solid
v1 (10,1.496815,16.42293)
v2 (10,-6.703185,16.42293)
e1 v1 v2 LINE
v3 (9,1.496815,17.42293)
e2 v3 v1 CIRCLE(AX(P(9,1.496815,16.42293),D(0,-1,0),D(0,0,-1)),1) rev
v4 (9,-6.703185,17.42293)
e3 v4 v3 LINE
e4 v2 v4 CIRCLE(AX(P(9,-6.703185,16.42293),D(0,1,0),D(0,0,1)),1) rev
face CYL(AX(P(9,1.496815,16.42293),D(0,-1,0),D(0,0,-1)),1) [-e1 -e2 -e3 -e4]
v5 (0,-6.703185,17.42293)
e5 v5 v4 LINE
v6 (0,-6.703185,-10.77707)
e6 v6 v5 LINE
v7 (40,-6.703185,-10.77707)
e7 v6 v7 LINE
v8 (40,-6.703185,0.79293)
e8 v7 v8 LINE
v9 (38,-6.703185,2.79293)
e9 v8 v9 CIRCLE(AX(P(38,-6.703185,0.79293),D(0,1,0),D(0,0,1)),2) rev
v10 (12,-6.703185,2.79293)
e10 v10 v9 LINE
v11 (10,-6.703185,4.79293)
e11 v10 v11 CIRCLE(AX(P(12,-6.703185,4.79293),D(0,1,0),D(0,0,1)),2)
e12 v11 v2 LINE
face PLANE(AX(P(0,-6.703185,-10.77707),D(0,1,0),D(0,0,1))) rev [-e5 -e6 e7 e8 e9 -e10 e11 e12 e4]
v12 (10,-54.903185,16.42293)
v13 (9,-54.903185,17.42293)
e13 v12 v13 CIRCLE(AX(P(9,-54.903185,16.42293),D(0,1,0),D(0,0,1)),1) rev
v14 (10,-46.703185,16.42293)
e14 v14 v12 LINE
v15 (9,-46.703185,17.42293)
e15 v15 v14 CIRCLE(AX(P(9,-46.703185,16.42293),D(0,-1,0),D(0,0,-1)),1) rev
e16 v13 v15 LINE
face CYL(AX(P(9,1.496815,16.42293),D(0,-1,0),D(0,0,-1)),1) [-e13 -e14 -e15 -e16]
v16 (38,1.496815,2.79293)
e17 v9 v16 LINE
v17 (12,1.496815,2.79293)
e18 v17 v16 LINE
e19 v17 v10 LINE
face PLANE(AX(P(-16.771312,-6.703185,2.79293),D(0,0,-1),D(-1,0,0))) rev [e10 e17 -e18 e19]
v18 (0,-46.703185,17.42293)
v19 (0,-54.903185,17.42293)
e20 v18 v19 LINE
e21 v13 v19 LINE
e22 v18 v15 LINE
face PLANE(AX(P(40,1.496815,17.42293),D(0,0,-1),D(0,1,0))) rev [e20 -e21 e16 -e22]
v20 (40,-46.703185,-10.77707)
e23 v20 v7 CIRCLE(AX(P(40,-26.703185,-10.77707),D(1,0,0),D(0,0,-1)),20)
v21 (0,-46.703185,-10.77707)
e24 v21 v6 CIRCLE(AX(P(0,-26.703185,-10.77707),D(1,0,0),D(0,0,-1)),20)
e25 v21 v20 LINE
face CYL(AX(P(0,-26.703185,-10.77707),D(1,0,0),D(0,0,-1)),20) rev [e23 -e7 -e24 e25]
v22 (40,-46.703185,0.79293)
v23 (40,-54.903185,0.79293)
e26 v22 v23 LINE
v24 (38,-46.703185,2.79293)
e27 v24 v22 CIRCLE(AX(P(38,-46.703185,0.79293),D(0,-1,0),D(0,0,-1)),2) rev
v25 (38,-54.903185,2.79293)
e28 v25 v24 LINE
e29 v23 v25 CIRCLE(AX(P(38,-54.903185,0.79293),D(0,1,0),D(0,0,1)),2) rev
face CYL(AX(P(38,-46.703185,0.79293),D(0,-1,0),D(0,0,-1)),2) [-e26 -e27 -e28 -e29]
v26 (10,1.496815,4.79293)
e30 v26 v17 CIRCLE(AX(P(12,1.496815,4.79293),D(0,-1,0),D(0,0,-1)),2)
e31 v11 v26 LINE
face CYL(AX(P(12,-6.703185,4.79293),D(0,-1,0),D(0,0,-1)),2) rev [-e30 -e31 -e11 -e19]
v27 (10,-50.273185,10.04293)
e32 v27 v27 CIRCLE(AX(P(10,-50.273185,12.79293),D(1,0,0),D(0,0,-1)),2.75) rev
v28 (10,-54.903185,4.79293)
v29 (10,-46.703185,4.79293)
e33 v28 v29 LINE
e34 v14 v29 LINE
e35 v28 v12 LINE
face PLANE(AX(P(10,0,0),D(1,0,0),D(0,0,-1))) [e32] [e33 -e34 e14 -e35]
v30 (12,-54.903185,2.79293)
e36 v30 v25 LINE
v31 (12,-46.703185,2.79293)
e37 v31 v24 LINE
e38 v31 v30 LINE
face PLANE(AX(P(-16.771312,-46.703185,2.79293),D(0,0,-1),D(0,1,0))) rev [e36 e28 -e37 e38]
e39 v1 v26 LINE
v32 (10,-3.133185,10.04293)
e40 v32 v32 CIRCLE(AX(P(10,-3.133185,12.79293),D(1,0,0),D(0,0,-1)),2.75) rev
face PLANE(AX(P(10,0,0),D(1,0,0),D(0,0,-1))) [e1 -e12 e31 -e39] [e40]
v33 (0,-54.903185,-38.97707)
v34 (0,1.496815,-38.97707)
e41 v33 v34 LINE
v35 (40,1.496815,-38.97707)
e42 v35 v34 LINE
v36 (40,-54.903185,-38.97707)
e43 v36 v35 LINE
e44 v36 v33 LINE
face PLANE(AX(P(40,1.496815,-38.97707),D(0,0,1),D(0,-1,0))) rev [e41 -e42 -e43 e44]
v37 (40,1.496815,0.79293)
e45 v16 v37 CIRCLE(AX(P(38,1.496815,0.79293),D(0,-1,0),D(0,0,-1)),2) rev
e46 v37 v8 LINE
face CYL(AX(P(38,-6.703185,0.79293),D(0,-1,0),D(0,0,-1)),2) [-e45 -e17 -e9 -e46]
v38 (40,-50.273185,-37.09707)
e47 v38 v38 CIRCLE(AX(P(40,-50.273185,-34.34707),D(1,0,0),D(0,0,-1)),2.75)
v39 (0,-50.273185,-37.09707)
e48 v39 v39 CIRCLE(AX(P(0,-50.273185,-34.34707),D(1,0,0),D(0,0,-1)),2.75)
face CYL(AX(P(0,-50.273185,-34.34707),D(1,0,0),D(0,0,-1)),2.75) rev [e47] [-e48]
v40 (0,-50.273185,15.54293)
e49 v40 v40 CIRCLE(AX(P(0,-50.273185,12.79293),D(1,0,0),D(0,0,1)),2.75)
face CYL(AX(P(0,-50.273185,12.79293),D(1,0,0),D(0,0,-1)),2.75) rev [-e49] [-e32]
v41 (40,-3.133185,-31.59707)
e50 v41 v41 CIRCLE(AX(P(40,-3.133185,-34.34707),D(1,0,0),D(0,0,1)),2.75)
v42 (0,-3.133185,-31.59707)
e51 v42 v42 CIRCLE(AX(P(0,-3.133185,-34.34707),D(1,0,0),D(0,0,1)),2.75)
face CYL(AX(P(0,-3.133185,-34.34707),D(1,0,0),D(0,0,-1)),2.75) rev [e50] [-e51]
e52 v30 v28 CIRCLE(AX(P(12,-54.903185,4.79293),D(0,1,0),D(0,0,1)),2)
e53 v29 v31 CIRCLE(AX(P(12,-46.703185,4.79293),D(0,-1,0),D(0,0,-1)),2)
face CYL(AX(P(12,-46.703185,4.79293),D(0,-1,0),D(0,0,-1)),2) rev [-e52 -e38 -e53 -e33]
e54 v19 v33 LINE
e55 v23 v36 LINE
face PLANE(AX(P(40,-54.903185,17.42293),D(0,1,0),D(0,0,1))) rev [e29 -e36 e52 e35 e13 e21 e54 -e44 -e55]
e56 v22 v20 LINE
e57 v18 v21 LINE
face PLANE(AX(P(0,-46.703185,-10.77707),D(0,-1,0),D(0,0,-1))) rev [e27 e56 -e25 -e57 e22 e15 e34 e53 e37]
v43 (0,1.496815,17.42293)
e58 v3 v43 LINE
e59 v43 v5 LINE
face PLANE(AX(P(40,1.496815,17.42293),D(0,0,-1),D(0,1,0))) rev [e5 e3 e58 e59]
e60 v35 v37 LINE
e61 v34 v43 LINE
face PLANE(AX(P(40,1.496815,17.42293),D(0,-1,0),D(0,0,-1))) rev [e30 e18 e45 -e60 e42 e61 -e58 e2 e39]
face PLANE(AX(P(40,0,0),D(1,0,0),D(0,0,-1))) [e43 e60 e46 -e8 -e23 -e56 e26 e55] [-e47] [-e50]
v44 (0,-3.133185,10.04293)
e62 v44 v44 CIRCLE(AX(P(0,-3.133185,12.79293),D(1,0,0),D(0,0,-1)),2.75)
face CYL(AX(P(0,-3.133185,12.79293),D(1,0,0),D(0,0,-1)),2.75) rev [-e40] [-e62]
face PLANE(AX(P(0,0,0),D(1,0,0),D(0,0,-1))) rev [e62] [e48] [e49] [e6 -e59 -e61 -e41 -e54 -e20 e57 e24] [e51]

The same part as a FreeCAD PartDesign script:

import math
import FreeCAD as App
import Part
import Sketcher
Q = App.Units.Quantity


def edges_at(feature, points):
    """Names of the edges that pass closest to the given points."""
    edges = feature.Shape.Edges
    near = lambda p: min(range(len(edges)), key=lambda i: edges[i].distToShape(Part.Vertex(*p))[0])
    return sorted({f"Edge{near(p) + 1}" for p in points})


def add_polygon(sketch, points):
    """Adds a closed chain of lines whose ends are joined by coincident constraints."""
    first, n = sketch.GeometryCount, len(points)
    for a, b in zip(points, points[1:] + points[:1]):
        sketch.addGeometry(Part.LineSegment(App.Vector(*a, 0), App.Vector(*b, 0)), False)
    for i in range(n):
        sketch.addConstraint(Sketcher.Constraint("Coincident", first + i, 2, first + (i + 1) % n, 1))

doc = App.newDocument("Part")
body = doc.addObject("PartDesign::Body", "Body")

sketch1 = doc.addObject("Sketcher::SketchObject", "Sketch")
body.addObject(sketch1)
sketch1.AttachmentSupport = (doc.YZ_Plane, [""])
sketch1.MapMode = "FlatFace"
add_polygon(sketch1, [(1.496815, 17.42293), (-54.903185, 17.42293), (-54.903185, -38.97707), (1.496815, -38.97707)])
sketch1.addConstraint([
    Sketcher.Constraint("Horizontal", 0),
    Sketcher.Constraint("Vertical", 1),
    Sketcher.Constraint("Horizontal", 2),
    Sketcher.Constraint("Vertical", 3),
    Sketcher.Constraint("Equal", 2, 1),
    Sketcher.Constraint("DistanceX", 0, 2, 0, 1, Q("56.4 mm")),
    Sketcher.Constraint("DistanceY", -1, 1, 0, 2, Q("17.42293 mm")),
    Sketcher.Constraint("DistanceX", 0, 2, -1, 1, Q("54.903185 mm")),
])
pad1 = doc.addObject("PartDesign::Pad", "Pad")
body.addObject(pad1)
pad1.Profile = sketch1
pad1.Length = 40

sketch2 = doc.addObject("Sketcher::SketchObject", "Sketch001")
body.addObject(sketch2)
sketch2.AttachmentSupport = (doc.YZ_Plane, [""])
sketch2.MapMode = "FlatFace"
sketch2.AttachmentOffset = App.Placement(App.Vector(0, 0, 40), App.Rotation())
sketch2.addGeometry([
    Part.Circle(App.Vector(-3.133185, 12.79293, 0), App.Vector(0, 0, 1), 2.75),
    Part.Circle(App.Vector(-50.273185, 12.79293, 0), App.Vector(0, 0, 1), 2.75),
    Part.Circle(App.Vector(-3.133185, -34.34707, 0), App.Vector(0, 0, 1), 2.75),
    Part.Circle(App.Vector(-50.273185, -34.34707, 0), App.Vector(0, 0, 1), 2.75),
], False)
sketch2.addConstraint([
    Sketcher.Constraint("Equal", 0, 1),
    Sketcher.Constraint("Equal", 1, 2),
    Sketcher.Constraint("Equal", 2, 3),
    Sketcher.Constraint("Horizontal", 0, 3, 1, 3),
    Sketcher.Constraint("Horizontal", 2, 3, 3, 3),
    Sketcher.Constraint("Vertical", 0, 3, 2, 3),
    Sketcher.Constraint("Vertical", 1, 3, 3, 3),
    Sketcher.Constraint("Diameter", 0, Q("5.5 mm")),
    Sketcher.Constraint("DistanceX", 1, 3, 0, 3, Q("47.14 mm")),
    Sketcher.Constraint("DistanceY", 2, 3, 0, 3, Q("47.14 mm")),
    Sketcher.Constraint("DistanceY", -1, 1, 0, 3, Q("12.79293 mm")),
    Sketcher.Constraint("DistanceX", 0, 3, -1, 1, Q("3.133185 mm")),
])
pocket1 = doc.addObject("PartDesign::Pocket", "Pocket")
body.addObject(pocket1)
pocket1.Profile = sketch2
pocket1.Type = "ThroughAll"

sketch3 = doc.addObject("Sketcher::SketchObject", "Sketch002")
body.addObject(sketch3)
sketch3.AttachmentSupport = (doc.YZ_Plane, [""])
sketch3.MapMode = "FlatFace"
sketch3.AttachmentOffset = App.Placement(App.Vector(0, 0, 40), App.Rotation())
sketch3.addGeometry([
    Part.LineSegment(App.Vector(-6.703185, -10.77707, 0), App.Vector(-6.703185, 17.42293, 0)),
    Part.LineSegment(App.Vector(-6.703185, 17.42293, 0), App.Vector(-46.703185, 17.42293, 0)),
    Part.LineSegment(App.Vector(-46.703185, 17.42293, 0), App.Vector(-46.703185, -10.77707, 0)),
    Part.ArcOfCircle(Part.Circle(App.Vector(-26.703185, -10.77707, 0), App.Vector(0, 0, 1), 20), math.radians(180), math.radians(360)),
], False)
sketch3.addConstraint([
    Sketcher.Constraint("Coincident", 0, 2, 1, 1),
    Sketcher.Constraint("Coincident", 1, 2, 2, 1),
    Sketcher.Constraint("Tangent", 2, 2, 3, 1),
    Sketcher.Constraint("Tangent", 3, 2, 0, 1),
    Sketcher.Constraint("Vertical", 0),
    Sketcher.Constraint("Horizontal", 1),
    Sketcher.Constraint("Vertical", 2),
    Sketcher.Constraint("Radius", 3, Q("20 mm")),
    Sketcher.Constraint("DistanceY", 0, 1, 0, 2, Q("28.2 mm")),
    Sketcher.Constraint("DistanceY", 3, 3, -1, 1, Q("10.77707 mm")),
    Sketcher.Constraint("DistanceX", 3, 3, -1, 1, Q("26.703185 mm")),
])
pocket2 = doc.addObject("PartDesign::Pocket", "Pocket001")
body.addObject(pocket2)
pocket2.Profile = sketch3
pocket2.Type = "ThroughAll"

sketch4 = doc.addObject("Sketcher::SketchObject", "Sketch003")
body.addObject(sketch4)
sketch4.AttachmentSupport = (doc.YZ_Plane, [""])
sketch4.MapMode = "FlatFace"
sketch4.AttachmentOffset = App.Placement(App.Vector(0, 0, 40), App.Rotation())
add_polygon(sketch4, [(1.496815, 17.42293), (-6.703185, 17.42293), (-6.703185, 2.79293), (1.496815, 2.79293)])
add_polygon(sketch4, [(-46.703185, 17.42293), (-54.903185, 17.42293), (-54.903185, 2.79293), (-46.703185, 2.79293)])
sketch4.addConstraint([
    Sketcher.Constraint("Horizontal", 0),
    Sketcher.Constraint("Vertical", 1),
    Sketcher.Constraint("Horizontal", 2),
    Sketcher.Constraint("Vertical", 3),
    Sketcher.Constraint("Horizontal", 4),
    Sketcher.Constraint("Vertical", 5),
    Sketcher.Constraint("Horizontal", 6),
    Sketcher.Constraint("Vertical", 7),
    Sketcher.Constraint("Horizontal", 3, 2, 4, 2),
    Sketcher.Constraint("Horizontal", 2, 2, 5, 2),
    Sketcher.Constraint("Equal", 2, 4),
    Sketcher.Constraint("DistanceX", 0, 2, 0, 1, Q("8.2 mm")),
    Sketcher.Constraint("DistanceX", 6, 2, 1, 2, Q("40 mm")),
    Sketcher.Constraint("DistanceY", 1, 2, 1, 1, Q("14.63 mm")),
    Sketcher.Constraint("DistanceY", -1, 1, 0, 2, Q("17.42293 mm")),
    Sketcher.Constraint("DistanceX", 0, 2, -1, 1, Q("6.703185 mm")),
])
pocket3 = doc.addObject("PartDesign::Pocket", "Pocket002")
body.addObject(pocket3)
pocket3.Profile = sketch4
pocket3.Length = 30
doc.recompute()

fillet = doc.addObject("PartDesign::Fillet", "Fillet")
body.addObject(fillet)
fillet.Base = (pocket3, edges_at(pocket3, [(10, -2.603, 2.793), (10, -50.803, 2.793)]))
fillet.Radius = 2
doc.recompute()

fillet2 = doc.addObject("PartDesign::Fillet", "Fillet001")
body.addObject(fillet2)
fillet2.Base = (fillet, edges_at(fillet, [(40, -2.603, 2.793), (40, -50.803, 2.793)]))
fillet2.Radius = 2
doc.recompute()

fillet3 = doc.addObject("PartDesign::Fillet", "Fillet002")
body.addObject(fillet3)
fillet3.Base = (fillet2, edges_at(fillet2, [(10, -2.603, 17.423), (10, -50.803, 17.423)]))
fillet3.Radius = 1

doc.recompute()
